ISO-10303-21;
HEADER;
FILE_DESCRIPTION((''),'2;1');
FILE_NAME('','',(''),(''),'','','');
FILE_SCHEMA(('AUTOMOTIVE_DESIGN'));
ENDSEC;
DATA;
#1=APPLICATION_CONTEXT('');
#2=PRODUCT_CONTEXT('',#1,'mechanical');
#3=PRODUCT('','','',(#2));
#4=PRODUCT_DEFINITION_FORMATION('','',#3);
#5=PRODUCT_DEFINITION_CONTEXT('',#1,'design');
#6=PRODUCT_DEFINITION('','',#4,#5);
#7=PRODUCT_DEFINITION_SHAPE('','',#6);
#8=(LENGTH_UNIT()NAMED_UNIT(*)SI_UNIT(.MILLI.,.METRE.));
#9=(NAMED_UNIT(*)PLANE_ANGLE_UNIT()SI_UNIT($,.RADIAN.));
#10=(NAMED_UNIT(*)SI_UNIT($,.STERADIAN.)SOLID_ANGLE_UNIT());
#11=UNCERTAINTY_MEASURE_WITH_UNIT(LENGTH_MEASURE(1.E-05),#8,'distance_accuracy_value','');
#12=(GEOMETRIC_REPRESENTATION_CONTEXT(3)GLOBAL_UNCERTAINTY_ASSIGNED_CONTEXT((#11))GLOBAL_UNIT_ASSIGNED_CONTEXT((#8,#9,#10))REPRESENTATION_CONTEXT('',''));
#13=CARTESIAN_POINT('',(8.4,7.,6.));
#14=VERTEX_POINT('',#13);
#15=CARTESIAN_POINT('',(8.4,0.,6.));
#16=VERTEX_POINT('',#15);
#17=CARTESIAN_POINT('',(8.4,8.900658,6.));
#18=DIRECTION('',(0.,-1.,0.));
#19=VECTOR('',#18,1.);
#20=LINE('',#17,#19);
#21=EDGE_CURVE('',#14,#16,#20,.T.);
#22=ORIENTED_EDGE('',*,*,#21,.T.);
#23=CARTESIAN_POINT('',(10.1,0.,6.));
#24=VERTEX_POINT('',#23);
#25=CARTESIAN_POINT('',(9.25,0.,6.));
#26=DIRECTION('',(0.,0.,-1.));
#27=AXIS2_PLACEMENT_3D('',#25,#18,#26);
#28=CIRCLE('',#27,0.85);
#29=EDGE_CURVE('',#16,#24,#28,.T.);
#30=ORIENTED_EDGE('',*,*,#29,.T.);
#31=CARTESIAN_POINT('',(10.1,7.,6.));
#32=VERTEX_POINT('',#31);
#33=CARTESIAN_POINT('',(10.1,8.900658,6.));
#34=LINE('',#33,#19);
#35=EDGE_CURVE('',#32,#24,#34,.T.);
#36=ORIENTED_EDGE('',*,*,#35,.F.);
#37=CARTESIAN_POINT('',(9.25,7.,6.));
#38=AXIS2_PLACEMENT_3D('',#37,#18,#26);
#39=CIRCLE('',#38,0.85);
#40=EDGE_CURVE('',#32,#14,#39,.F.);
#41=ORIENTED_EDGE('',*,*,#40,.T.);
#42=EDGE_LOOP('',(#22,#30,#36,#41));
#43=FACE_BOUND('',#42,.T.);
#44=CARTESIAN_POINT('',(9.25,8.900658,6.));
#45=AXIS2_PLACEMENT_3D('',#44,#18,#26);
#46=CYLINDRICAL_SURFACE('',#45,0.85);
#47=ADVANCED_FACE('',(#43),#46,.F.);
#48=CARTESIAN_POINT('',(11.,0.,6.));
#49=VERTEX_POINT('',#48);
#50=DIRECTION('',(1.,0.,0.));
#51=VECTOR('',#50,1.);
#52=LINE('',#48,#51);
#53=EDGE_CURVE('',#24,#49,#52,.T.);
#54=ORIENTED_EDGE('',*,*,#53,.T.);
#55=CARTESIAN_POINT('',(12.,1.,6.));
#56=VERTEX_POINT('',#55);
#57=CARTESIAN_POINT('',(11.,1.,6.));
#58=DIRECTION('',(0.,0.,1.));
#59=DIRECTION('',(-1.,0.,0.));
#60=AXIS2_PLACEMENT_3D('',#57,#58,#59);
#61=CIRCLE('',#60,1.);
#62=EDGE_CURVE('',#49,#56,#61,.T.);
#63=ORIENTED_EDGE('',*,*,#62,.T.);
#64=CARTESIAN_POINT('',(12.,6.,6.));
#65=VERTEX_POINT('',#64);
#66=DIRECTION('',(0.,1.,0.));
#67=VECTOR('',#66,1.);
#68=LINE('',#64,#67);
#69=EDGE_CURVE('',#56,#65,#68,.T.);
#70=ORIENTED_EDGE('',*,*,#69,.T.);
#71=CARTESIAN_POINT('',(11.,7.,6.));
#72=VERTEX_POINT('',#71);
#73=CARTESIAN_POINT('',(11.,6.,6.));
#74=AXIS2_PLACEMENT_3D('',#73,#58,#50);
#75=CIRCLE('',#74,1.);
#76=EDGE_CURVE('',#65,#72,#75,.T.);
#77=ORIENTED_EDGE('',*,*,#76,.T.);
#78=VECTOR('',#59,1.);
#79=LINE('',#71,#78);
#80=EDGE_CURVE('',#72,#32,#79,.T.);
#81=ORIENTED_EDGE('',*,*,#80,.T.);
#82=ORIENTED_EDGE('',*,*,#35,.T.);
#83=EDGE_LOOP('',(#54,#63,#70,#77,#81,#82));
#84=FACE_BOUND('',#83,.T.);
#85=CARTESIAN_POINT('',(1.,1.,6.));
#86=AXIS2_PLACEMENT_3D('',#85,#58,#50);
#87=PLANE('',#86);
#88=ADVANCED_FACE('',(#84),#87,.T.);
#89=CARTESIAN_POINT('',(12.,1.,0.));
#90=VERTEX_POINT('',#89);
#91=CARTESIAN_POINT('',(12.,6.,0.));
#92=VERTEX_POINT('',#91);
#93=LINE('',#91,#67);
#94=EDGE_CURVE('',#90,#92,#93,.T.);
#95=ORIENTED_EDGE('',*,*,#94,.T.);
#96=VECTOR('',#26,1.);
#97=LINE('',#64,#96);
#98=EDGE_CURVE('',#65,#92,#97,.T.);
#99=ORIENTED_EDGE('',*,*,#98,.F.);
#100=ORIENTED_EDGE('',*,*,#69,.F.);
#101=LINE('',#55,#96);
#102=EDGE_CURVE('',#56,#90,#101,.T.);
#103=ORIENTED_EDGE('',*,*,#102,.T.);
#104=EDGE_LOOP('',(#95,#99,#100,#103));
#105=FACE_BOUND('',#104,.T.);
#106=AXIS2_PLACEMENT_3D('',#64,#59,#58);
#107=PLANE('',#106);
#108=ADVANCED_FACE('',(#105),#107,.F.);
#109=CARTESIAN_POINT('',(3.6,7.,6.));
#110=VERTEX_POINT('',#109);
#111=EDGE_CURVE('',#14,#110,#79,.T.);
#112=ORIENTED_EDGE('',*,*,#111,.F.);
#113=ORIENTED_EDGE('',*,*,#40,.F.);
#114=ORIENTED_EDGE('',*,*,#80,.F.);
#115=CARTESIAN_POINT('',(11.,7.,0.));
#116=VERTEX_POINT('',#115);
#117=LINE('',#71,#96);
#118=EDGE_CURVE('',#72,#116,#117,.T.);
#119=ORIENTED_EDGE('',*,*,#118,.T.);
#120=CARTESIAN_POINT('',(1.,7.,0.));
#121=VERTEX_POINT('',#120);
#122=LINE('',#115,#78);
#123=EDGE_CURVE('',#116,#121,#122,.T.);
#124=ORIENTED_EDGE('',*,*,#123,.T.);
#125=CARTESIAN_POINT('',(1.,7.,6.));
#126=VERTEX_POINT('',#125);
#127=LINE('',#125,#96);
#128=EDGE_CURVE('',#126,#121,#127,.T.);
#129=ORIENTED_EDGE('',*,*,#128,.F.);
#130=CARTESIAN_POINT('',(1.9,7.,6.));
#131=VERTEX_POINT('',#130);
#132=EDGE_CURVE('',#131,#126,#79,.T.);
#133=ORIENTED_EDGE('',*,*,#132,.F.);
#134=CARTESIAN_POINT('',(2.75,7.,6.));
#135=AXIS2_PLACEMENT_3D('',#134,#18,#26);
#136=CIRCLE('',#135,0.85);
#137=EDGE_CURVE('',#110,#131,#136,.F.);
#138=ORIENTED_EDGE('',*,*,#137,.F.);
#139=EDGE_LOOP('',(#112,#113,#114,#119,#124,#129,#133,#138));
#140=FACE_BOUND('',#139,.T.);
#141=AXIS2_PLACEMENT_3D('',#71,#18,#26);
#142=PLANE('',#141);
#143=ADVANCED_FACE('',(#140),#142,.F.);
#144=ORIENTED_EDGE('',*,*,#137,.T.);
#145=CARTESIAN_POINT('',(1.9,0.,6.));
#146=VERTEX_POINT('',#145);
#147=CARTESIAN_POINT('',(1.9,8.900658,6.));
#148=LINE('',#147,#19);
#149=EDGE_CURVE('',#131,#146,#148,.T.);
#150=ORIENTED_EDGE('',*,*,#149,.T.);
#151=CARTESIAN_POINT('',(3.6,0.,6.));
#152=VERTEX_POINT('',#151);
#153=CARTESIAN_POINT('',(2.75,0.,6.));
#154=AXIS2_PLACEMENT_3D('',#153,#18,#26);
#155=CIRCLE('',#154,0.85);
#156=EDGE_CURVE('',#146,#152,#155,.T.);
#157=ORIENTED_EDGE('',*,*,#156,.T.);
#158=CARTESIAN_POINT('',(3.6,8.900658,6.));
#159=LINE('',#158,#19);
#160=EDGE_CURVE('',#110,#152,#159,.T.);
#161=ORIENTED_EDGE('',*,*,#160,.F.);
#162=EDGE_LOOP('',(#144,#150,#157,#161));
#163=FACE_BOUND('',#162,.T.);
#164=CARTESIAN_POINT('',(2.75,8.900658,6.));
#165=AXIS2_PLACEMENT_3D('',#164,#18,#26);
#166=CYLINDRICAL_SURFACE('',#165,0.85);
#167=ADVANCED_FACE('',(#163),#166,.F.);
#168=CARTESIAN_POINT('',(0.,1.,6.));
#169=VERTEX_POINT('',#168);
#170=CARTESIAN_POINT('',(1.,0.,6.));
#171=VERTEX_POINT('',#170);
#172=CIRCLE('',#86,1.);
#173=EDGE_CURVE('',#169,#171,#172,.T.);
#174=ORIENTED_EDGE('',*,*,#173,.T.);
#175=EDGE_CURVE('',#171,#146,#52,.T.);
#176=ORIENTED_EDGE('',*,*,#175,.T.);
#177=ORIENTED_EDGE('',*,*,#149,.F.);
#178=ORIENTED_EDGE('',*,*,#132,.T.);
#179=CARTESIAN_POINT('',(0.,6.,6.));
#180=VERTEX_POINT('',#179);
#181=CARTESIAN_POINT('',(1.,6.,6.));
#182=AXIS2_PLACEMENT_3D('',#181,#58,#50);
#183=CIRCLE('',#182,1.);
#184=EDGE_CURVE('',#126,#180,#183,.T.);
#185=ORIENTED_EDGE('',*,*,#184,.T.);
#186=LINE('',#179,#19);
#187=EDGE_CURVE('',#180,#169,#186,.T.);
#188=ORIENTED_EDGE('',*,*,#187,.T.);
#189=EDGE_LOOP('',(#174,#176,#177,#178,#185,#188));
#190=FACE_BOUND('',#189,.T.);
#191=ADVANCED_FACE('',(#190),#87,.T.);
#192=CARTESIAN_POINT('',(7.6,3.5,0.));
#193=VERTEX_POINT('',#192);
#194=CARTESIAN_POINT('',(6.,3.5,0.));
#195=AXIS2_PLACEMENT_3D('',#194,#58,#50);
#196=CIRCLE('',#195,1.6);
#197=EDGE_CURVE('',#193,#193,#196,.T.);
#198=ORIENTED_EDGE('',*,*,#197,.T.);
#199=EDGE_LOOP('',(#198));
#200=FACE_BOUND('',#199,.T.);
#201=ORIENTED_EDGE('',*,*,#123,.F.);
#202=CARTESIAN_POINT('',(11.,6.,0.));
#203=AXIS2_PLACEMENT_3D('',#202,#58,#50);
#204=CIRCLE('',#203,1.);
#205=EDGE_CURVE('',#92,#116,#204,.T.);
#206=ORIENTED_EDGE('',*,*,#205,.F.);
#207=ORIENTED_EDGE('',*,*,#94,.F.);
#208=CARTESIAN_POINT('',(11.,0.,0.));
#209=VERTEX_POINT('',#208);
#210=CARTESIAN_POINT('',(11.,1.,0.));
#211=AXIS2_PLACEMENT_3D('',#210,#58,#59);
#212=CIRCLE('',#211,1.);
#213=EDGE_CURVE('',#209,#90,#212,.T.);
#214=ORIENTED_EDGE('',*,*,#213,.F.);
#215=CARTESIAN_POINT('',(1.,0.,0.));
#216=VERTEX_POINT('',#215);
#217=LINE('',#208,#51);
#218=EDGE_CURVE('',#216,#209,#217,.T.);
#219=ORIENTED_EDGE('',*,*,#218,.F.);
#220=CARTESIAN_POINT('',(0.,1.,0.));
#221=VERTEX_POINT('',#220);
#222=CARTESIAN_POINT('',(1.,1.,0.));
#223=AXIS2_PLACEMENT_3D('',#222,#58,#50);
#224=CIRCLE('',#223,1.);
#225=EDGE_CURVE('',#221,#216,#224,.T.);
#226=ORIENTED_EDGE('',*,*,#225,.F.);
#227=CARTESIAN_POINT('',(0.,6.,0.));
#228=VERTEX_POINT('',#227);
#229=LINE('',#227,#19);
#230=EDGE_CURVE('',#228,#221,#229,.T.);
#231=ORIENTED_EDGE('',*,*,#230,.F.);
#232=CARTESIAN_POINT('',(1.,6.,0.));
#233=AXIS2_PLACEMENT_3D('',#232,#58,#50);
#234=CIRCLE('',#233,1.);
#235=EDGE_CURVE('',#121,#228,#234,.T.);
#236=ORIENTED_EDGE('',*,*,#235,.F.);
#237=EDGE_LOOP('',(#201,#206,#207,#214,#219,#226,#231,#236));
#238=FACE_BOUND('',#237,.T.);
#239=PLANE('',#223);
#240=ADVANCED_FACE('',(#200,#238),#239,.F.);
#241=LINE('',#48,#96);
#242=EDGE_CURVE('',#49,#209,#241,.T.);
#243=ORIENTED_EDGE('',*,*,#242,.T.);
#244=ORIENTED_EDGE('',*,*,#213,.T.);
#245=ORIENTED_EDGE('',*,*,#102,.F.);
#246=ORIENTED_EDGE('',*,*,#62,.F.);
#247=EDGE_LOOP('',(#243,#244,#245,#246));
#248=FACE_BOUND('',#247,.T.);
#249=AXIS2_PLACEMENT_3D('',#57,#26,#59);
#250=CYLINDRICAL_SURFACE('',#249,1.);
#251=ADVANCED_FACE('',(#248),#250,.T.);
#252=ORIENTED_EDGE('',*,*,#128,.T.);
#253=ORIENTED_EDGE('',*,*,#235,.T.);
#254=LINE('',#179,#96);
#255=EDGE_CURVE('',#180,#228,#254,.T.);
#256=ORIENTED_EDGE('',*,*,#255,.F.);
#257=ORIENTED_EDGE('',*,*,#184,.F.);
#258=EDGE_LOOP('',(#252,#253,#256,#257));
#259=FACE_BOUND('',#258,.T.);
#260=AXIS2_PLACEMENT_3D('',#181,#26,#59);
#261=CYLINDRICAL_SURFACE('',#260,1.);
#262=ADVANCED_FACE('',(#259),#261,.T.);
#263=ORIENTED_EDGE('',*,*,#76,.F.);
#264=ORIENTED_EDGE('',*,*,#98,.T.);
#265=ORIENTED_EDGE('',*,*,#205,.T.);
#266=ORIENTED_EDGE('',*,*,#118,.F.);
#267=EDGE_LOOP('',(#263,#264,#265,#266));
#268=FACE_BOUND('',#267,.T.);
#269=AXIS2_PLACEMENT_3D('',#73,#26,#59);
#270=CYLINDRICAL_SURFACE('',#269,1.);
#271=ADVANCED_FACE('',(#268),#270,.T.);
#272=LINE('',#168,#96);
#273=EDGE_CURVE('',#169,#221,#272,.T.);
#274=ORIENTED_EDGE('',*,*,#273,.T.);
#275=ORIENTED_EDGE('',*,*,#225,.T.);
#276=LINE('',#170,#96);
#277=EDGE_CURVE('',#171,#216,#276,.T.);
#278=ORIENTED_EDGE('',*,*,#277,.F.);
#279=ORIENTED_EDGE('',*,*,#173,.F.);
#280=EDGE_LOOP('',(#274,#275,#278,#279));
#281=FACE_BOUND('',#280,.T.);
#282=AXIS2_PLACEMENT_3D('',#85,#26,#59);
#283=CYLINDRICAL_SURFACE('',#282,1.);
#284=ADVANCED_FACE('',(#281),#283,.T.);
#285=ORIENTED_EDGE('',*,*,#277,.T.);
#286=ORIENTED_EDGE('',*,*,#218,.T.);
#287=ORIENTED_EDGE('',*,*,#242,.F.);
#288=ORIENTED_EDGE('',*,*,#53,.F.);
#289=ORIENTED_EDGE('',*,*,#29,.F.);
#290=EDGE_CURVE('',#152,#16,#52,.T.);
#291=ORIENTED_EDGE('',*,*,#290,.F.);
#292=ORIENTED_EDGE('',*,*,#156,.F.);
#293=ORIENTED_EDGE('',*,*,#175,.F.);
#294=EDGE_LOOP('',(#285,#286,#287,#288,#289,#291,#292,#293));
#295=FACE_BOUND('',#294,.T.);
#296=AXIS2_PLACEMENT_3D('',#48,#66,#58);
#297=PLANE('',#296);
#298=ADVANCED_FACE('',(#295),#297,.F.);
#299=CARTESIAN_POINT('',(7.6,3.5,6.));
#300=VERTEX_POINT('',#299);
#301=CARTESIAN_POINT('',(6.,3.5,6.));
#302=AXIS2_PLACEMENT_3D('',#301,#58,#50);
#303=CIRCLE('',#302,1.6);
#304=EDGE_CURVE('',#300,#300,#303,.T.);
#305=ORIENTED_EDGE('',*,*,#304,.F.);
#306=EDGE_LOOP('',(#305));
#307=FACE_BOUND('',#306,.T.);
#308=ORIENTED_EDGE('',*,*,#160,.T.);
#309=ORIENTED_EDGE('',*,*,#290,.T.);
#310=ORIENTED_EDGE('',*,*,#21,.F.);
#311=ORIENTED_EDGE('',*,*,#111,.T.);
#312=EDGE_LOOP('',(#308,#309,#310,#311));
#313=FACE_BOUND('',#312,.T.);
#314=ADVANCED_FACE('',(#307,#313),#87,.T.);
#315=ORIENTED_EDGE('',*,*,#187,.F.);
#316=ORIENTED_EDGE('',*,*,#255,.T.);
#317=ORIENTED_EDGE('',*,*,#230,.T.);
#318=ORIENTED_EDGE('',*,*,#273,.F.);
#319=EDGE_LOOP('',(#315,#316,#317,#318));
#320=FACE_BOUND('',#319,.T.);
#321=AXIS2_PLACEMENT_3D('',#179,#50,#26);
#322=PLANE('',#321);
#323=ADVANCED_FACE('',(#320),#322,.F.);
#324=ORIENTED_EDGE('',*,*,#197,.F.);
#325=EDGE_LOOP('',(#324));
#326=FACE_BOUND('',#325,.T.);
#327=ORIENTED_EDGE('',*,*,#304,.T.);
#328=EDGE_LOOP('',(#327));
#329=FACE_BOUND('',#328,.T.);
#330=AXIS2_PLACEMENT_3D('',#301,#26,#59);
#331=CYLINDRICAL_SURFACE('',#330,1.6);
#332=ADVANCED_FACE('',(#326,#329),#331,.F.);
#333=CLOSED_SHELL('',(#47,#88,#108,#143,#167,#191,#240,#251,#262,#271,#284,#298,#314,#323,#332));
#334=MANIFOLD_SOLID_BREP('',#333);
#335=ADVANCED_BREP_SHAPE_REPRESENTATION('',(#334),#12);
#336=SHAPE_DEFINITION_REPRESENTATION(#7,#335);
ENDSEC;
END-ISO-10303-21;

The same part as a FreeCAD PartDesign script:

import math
import FreeCAD as App
import Part
import Sketcher
from FreeCAD import Vector

doc = App.newDocument("Part")
body = doc.addObject("PartDesign::Body", "Body")

# Sketch on XY plane
sketch1 = body.newObject("Sketcher::SketchObject", "Sketch")
sketch1.AttachmentSupport = (doc.getObject("XY_Plane"), [""])
sketch1.MapMode = "FlatFace"
sketch1.addGeometry([
    Part.LineSegment(Vector(12, 1, 0), Vector(12, 6, 0)),  # 0
    Part.ArcOfCircle(Part.Circle(Vector(11, 6, 0), Vector(0, 0, 1), 1), math.radians(0), math.radians(90)),  # 1
    Part.LineSegment(Vector(11, 7, 0), Vector(1, 7, 0)),  # 2
    Part.ArcOfCircle(Part.Circle(Vector(1, 6, 0), Vector(0, 0, 1), 1), math.radians(90), math.radians(180)),  # 3
    Part.LineSegment(Vector(0, 6, 0), Vector(0, 1, 0)),  # 4
    Part.ArcOfCircle(Part.Circle(Vector(1, 1, 0), Vector(0, 0, 1), 1), math.radians(-180), math.radians(-90)),  # 5
    Part.LineSegment(Vector(1, 0, 0), Vector(11, 0, 0)),  # 6
    Part.ArcOfCircle(Part.Circle(Vector(11, 1, 0), Vector(0, 0, 1), 1), math.radians(-90), math.radians(0)),  # 7
    Part.Circle(Vector(6, 3.5, 0), Vector(0, 0, 1), 1.6),  # 8
], False)
sketch1.addConstraint([
    Sketcher.Constraint("Tangent", 0, 2, 1, 1),
    Sketcher.Constraint("Tangent", 1, 2, 2, 1),
    Sketcher.Constraint("Tangent", 2, 2, 3, 1),
    Sketcher.Constraint("Tangent", 3, 2, 4, 1),
    Sketcher.Constraint("Tangent", 4, 2, 5, 1),
    Sketcher.Constraint("Tangent", 5, 2, 6, 1),
    Sketcher.Constraint("Tangent", 6, 2, 7, 1),
    Sketcher.Constraint("Tangent", 7, 2, 0, 1),
    Sketcher.Constraint("Vertical", 0),
    Sketcher.Constraint("Horizontal", 2),
    Sketcher.Constraint("Vertical", 4),
    Sketcher.Constraint("Horizontal", 6),
    Sketcher.Constraint("Equal", 1, 3),
    Sketcher.Constraint("Equal", 3, 5),
    Sketcher.Constraint("Equal", 5, 7),
    Sketcher.Constraint("PointOnObject", 3, 2, -2),
    Sketcher.Constraint("PointOnObject", 5, 2, -1),
    Sketcher.Constraint("Radius", 1, 1.0),
    Sketcher.Constraint("Diameter", 8, 3.2),
    Sketcher.Constraint("DistanceX", 2, 2, 2, 1, 10.0),
    Sketcher.Constraint("DistanceY", 0, 1, 0, 2, 5.0),
    Sketcher.Constraint("DistanceX", -1, 1, 8, 3, 6.0),
    Sketcher.Constraint("DistanceY", -1, 1, 8, 3, 3.5),
])
pad1 = body.newObject("PartDesign::Pad", "Pad")
pad1.Profile = sketch1
pad1.Length = 6

# Sketch on XZ plane
sketch2 = body.newObject("Sketcher::SketchObject", "Sketch001")
sketch2.AttachmentSupport = (doc.getObject("XZ_Plane"), [""])
sketch2.MapMode = "FlatFace"
sketch2.addGeometry([
    Part.LineSegment(Vector(3.6, 6, 0), Vector(1.9, 6, 0)),
    Part.ArcOfCircle(Part.Circle(Vector(2.8, 6, 0), Vector(0, 0, 1), 0.8), math.radians(180), math.radians(360)),
    Part.LineSegment(Vector(10.1, 6, 0), Vector(8.4, 6, 0)),
    Part.ArcOfCircle(Part.Circle(Vector(9.2, 6, 0), Vector(0, 0, 1), 0.8), math.radians(180), math.radians(360)),
], False)
sketch2.addConstraint([
    Sketcher.Constraint("Coincident", 0, 1, 1, 2),
    Sketcher.Constraint("Coincident", 1, 1, 0, 2),
    Sketcher.Constraint("Coincident", 2, 1, 3, 2),
    Sketcher.Constraint("Coincident", 3, 1, 2, 2),
    Sketcher.Constraint("Horizontal", 0),
    Sketcher.Constraint("Horizontal", 2),
    Sketcher.Constraint("Equal", 1, 3),
    Sketcher.Constraint("Horizontal", 1, 3, 3, 3),
    Sketcher.Constraint("Horizontal", 3, 3, 0, 1),
    Sketcher.Constraint("Horizontal", 1, 1, 2, 1),
    Sketcher.Constraint("Radius", 1, 0.85),
    Sketcher.Constraint("DistanceY", -1, 1, 1, 3, 6.0),
    Sketcher.Constraint("DistanceX", -1, 1, 0, 1, 3.6),
    Sketcher.Constraint("DistanceX", -1, 1, 2, 1, 10.1),
])
pocket1 = body.newObject("PartDesign::Pocket", "Pocket")
pocket1.Profile = sketch2
pocket1.Length = 7

doc.recompute()
